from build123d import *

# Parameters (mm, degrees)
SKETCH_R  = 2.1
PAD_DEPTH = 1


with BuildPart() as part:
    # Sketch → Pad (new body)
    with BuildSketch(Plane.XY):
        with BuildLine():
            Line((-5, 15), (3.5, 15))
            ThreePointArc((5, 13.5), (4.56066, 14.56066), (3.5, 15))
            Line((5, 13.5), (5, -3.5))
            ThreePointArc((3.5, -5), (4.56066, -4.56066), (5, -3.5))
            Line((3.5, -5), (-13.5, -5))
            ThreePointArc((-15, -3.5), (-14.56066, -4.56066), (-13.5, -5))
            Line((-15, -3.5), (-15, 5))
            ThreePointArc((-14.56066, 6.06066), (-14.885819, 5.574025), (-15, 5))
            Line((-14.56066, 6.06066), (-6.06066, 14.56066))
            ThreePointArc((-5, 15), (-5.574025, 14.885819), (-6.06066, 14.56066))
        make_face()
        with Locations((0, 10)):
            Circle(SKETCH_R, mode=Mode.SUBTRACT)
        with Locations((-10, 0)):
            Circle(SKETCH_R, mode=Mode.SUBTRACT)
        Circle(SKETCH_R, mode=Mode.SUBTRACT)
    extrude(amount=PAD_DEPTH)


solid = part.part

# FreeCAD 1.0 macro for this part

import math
import FreeCAD as App
import Part
import Sketcher

doc = App.newDocument("Part")
body = doc.addObject("PartDesign::Body", "Body")

sketch1 = body.newObject("Sketcher::SketchObject", "Sketch")
sketch1.AttachmentSupport = (doc.getObject("XY_Plane"), [""])
sketch1.MapMode = "FlatFace"
sketch1.addGeometry([
    Part.LineSegment(App.Vector(3.5, 15, 0), App.Vector(-5, 15, 0)),
    Part.ArcOfCircle(Part.Circle(App.Vector(-5, 13.5, 0), App.Vector(0, 0, 1), 1.5), math.radians(90), math.radians(135)),
    Part.LineSegment(App.Vector(-6.1, 14.6, 0), App.Vector(-14.6, 6.1, 0)),
    Part.ArcOfCircle(Part.Circle(App.Vector(-13.5, 5, 0), App.Vector(0, 0, 1), 1.5), math.radians(135), math.radians(180)),
    Part.LineSegment(App.Vector(-15, 5, 0), App.Vector(-15, -3.5, 0)),
    Part.ArcOfCircle(Part.Circle(App.Vector(-13.5, -3.5, 0), App.Vector(0, 0, 1), 1.5), math.radians(-180), math.radians(-90)),
    Part.LineSegment(App.Vector(-13.5, -5, 0), App.Vector(3.5, -5, 0)),
    Part.ArcOfCircle(Part.Circle(App.Vector(3.5, -3.5, 0), App.Vector(0, 0, 1), 1.5), math.radians(-90), math.radians(0)),
    Part.LineSegment(App.Vector(5, -3.5, 0), App.Vector(5, 13.5, 0)),
    Part.ArcOfCircle(Part.Circle(App.Vector(3.5, 13.5, 0), App.Vector(0, 0, 1), 1.5), math.radians(0), math.radians(90)),
    Part.Circle(App.Vector(0, 0, 0), App.Vector(0, 0, 1), 2.1),
    Part.Circle(App.Vector(-10, 0, 0), App.Vector(0, 0, 1), 2.1),
    Part.Circle(App.Vector(0, 10, 0), App.Vector(0, 0, 1), 2.1),
], False)
sketch1.addConstraint([
    Sketcher.Constraint("Tangent", 0, 2, 1, 1),
    Sketcher.Constraint("Tangent", 1, 2, 2, 1),
    Sketcher.Constraint("Tangent", 2, 2, 3, 1),
    Sketcher.Constraint("Tangent", 3, 2, 4, 1),
    Sketcher.Constraint("Tangent", 4, 2, 5, 1),
    Sketcher.Constraint("Tangent", 5, 2, 6, 1),
    Sketcher.Constraint("Tangent", 6, 2, 7, 1),
    Sketcher.Constraint("Tangent", 7, 2, 8, 1),
    Sketcher.Constraint("Tangent", 8, 2, 9, 1),
    Sketcher.Constraint("Tangent", 9, 2, 0, 1),
    Sketcher.Constraint("Horizontal", 0),
    Sketcher.Constraint("Vertical", 4),
    Sketcher.Constraint("Horizontal", 6),
    Sketcher.Constraint("Vertical", 8),
    Sketcher.Constraint("Coincident", 10, 3, -1, 1),
    Sketcher.Constraint("Equal", 1, 3),
    Sketcher.Constraint("Equal", 3, 5),
    Sketcher.Constraint("Equal", 5, 7),
    Sketcher.Constraint("Equal", 7, 9),
    Sketcher.Constraint("Equal", 10, 11),
    Sketcher.Constraint("Equal", 11, 12),
    Sketcher.Constraint("PointOnObject", 11, 3, -1),
    Sketcher.Constraint("PointOnObject", 12, 3, -2),
    Sketcher.Constraint("Equal", 0, 4),
    Sketcher.Constraint("Equal", 6, 8),
    Sketcher.Constraint("Diameter", 10, 4.2),
    Sketcher.Constraint("Radius", 5, 1.500001),
    Sketcher.Constraint("DistanceX", 6, 1, 6, 2, 17.0),
    Sketcher.Constraint("DistanceX", 0, 2, 0, 1, 8.5),
    Sketcher.Constraint("DistanceX", 1, 3, -1, 1, 4.999999),
    Sketcher.Constraint("DistanceY", -1, 1, 3, 3, 4.999999),
    Sketcher.Constraint("DistanceX", 11, 3, -1, 1, 10.0),
    Sketcher.Constraint("DistanceY", -1, 1, 12, 3, 10.0),
])
pad1 = body.newObject("PartDesign::Pad", "Pad")
pad1.Profile = sketch1
pad1.Length = 1

doc.recompute()
